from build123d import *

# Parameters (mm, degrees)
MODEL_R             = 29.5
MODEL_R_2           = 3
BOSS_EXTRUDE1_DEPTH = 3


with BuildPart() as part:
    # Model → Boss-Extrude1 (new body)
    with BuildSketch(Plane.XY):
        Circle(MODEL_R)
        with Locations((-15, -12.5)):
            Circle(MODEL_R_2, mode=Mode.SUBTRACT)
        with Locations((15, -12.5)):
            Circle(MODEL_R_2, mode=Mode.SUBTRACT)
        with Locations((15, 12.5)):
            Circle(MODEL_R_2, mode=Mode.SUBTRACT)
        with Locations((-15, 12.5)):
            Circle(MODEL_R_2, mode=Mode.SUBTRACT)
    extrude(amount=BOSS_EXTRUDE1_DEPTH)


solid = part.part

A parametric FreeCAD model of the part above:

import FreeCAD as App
import Part
import Sketcher
from FreeCAD import Vector

doc = App.newDocument("Part")
body = doc.addObject("PartDesign::Body", "Body")

# Sketch on XY plane
sketch1 = body.newObject("Sketcher::SketchObject", "Sketch")
sketch1.AttachmentSupport = (doc.getObject("XY_Plane"), [""])
sketch1.MapMode = "FlatFace"
sketch1.addGeometry([
    Part.Circle(Vector(0, 0, 0), Vector(0, 0, 1), 29.5),  # 0
    Part.Circle(Vector(-15, -12.5, 0), Vector(0, 0, 1), 3),  # 1
    Part.Circle(Vector(15, -12.5, 0), Vector(0, 0, 1), 3),  # 2
    Part.Circle(Vector(-15, 12.5, 0), Vector(0, 0, 1), 3),  # 3
    Part.Circle(Vector(15, 12.5, 0), Vector(0, 0, 1), 3),  # 4
], False)
sketch1.addConstraint([
    Sketcher.Constraint("Coincident", 0, 3, -1, 1),
    Sketcher.Constraint("Equal", 1, 2),
    Sketcher.Constraint("Equal", 2, 3),
    Sketcher.Constraint("Equal", 3, 4),
    Sketcher.Constraint("Symmetric", 2, 3, 3, 3, -1, 1),
    Sketcher.Constraint("Symmetric", 1, 3, 4, 3, -1, 1),
    Sketcher.Constraint("Symmetric", 1, 3, 2, 3, -2),
    Sketcher.Constraint("Diameter", 0, 59.0),
    Sketcher.Constraint("Diameter", 1, 6.0),
    Sketcher.Constraint("DistanceX", 1, 3, -1, 1, 15.0),
    Sketcher.Constraint("DistanceY", 1, 3, 3, 3, 25.0),
])
pad1 = body.newObject("PartDesign::Pad", "Pad")
pad1.Profile = sketch1
pad1.Length = 3

doc.recompute()
